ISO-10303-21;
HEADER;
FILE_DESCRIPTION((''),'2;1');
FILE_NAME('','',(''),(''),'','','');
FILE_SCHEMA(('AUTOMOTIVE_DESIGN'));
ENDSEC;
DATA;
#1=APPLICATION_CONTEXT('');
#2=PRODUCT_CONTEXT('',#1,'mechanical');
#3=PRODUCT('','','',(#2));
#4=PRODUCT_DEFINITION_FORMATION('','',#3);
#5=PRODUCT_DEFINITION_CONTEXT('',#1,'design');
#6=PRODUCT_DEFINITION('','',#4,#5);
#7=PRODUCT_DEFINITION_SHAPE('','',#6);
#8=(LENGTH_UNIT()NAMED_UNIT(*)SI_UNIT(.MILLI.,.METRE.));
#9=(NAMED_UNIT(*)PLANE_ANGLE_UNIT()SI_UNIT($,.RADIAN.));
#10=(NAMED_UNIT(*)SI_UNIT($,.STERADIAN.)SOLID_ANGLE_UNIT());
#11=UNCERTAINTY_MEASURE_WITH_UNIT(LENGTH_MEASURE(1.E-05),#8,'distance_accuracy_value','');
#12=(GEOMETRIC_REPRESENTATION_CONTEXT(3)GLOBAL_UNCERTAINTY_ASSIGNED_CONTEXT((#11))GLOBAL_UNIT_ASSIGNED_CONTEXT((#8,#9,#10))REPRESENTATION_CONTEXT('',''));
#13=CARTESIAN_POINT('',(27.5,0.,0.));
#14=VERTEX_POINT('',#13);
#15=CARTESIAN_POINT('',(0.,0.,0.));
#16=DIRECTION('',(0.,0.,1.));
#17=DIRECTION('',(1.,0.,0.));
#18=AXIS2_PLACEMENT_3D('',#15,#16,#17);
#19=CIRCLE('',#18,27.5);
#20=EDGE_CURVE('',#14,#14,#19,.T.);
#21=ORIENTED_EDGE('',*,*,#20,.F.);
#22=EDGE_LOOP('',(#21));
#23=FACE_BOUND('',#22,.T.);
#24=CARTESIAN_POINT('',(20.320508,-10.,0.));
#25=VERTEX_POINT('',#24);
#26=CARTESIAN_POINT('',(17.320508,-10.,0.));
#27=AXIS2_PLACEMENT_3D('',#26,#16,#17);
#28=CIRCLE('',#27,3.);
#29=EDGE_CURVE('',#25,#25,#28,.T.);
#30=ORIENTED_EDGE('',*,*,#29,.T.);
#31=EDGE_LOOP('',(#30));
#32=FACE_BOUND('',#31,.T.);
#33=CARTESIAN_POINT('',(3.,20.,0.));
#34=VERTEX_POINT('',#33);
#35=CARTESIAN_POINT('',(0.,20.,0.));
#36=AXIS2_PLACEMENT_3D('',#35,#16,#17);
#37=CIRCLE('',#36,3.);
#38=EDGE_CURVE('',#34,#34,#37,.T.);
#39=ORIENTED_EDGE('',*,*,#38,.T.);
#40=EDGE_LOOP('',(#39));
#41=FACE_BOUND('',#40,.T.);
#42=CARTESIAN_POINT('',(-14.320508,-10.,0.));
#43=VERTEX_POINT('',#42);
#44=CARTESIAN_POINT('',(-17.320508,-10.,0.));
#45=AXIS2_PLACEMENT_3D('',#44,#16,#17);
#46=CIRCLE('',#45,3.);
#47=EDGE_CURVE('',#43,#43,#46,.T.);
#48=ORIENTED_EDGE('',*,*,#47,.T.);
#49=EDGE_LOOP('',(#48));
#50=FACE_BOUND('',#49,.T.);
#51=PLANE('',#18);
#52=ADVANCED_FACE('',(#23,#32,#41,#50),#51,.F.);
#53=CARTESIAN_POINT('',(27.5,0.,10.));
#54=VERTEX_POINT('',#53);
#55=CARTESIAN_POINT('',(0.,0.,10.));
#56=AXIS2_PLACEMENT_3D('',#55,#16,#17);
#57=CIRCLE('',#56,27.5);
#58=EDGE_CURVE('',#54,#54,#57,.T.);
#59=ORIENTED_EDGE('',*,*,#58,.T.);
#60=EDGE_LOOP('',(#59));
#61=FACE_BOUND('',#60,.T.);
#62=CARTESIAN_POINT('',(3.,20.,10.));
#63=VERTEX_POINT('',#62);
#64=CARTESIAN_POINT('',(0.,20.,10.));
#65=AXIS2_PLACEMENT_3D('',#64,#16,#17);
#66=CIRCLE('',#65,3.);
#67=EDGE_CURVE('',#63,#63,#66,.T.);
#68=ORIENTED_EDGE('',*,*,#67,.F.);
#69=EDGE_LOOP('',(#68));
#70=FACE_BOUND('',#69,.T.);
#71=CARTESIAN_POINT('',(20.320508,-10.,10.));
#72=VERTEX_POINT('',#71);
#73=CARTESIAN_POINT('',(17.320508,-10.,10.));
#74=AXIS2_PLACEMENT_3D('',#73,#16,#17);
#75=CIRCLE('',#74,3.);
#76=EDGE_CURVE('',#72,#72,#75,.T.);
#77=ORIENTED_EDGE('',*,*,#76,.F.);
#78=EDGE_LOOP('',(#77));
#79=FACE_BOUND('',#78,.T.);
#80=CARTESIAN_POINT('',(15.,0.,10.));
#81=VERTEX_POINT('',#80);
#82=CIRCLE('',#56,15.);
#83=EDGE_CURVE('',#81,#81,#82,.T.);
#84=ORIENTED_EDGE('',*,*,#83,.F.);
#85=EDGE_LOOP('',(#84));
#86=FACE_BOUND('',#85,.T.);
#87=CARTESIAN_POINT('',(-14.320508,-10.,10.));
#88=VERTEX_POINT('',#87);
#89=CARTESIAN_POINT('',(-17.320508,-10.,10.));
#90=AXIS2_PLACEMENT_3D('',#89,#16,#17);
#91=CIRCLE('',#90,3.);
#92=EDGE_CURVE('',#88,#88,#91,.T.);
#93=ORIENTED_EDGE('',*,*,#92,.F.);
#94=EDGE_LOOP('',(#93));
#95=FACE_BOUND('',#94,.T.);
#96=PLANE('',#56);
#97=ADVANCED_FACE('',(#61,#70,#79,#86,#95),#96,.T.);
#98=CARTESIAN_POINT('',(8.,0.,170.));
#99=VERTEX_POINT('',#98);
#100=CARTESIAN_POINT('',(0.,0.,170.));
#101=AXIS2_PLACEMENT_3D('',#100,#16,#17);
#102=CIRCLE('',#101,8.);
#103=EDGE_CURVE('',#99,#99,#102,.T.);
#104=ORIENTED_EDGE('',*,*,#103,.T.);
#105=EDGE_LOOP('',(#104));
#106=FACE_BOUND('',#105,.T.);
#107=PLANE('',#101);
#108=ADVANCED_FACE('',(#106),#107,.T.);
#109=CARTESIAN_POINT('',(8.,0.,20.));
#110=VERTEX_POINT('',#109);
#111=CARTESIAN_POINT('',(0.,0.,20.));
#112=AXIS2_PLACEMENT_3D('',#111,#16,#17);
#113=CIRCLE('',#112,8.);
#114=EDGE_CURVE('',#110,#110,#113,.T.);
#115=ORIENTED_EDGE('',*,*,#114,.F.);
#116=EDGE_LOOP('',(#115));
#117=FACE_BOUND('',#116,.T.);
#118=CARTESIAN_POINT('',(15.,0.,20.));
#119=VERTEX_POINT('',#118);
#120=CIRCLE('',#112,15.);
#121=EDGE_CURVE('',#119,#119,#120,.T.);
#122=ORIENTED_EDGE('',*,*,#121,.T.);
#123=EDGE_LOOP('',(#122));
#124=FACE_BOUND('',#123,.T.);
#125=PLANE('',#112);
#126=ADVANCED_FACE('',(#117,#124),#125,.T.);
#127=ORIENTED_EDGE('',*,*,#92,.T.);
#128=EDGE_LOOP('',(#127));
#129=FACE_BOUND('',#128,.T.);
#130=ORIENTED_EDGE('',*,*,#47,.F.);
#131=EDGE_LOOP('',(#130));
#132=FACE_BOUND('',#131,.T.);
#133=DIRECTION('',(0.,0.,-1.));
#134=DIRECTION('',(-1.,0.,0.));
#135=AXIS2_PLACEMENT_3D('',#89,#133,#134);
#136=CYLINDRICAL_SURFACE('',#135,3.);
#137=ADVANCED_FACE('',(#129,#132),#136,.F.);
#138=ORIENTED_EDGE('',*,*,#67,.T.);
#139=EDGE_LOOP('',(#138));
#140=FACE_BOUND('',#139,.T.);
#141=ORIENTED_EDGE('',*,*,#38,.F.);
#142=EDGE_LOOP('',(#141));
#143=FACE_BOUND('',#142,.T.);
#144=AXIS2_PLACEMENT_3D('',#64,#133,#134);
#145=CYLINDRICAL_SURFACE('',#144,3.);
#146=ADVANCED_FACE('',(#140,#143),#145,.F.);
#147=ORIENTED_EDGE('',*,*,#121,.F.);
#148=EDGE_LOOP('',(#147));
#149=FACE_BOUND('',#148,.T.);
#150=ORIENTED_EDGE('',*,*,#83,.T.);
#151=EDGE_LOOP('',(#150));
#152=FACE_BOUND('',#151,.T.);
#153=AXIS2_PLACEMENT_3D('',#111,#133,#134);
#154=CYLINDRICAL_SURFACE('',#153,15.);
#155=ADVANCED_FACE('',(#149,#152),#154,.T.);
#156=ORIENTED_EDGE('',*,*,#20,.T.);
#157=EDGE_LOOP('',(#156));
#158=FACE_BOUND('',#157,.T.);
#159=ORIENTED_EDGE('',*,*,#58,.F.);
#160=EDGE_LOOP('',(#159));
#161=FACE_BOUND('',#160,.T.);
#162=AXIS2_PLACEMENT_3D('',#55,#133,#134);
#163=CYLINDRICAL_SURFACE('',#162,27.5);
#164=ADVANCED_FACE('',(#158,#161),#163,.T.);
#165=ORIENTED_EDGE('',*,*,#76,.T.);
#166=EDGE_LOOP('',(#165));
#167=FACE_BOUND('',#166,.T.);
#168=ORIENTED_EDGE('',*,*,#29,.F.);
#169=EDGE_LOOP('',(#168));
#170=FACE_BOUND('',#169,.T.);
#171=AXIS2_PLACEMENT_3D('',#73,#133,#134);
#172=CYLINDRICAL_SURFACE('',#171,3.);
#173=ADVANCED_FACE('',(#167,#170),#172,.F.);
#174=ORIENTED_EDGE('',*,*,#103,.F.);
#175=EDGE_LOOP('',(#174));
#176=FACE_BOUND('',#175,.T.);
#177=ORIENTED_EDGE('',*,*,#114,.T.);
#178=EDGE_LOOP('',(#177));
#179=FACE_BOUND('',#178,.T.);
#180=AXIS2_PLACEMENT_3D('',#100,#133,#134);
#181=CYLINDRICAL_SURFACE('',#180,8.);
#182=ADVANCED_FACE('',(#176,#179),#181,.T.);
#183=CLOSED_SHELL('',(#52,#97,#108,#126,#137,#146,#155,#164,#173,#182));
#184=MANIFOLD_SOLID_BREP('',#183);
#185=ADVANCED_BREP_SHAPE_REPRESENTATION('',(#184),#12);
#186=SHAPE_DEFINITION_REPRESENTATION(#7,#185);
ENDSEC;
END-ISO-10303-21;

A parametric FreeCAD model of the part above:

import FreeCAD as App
import Part
import Sketcher
from FreeCAD import Vector
Q = App.Units.Quantity

doc = App.newDocument("Part")
params = doc.addObject("Spreadsheet::Sheet", "Params")
for row, (alias, value) in enumerate([
    ("sketch1_diameter", "55 mm"),
    ("sketch1_diameter2", "6 mm"),
    ("pad1_length", "10 mm"),
    ("sketch2_diameter", "30 mm"),
    ("pad2_length", "10 mm"),
    ("sketch3_diameter", "16 mm"),
    ("pad3_length", "150 mm"),
], start=1):
    params.set(f"A{row}", alias)
    params.set(f"B{row}", "=" + value)
    params.setAlias(f"B{row}", alias)

body = doc.addObject("PartDesign::Body", "Body")

# Sketch on XY plane
sketch1 = body.newObject("Sketcher::SketchObject", "Sketch")
sketch1.AttachmentSupport = (doc.getObject("XY_Plane"), [""])
sketch1.MapMode = "FlatFace"
sketch1.addGeometry(Part.Circle(Vector(0, 0, 0), Vector(0, 0, 1), 27.5), False)
sketch1.addGeometry(Part.Circle(Vector(-17.3, -10, 0), Vector(0, 0, 1), 3), False)
sketch1.addGeometry(Part.Circle(Vector(17.3, -10, 0), Vector(0, 0, 1), 3), False)
sketch1.addGeometry(Part.Circle(Vector(0, 20, 0), Vector(0, 0, 1), 3), False)
sketch1.addConstraint(Sketcher.Constraint("Coincident", 0, 3, -1, 1))
sketch1.addConstraint(Sketcher.Constraint("Equal", 1, 2))
sketch1.addConstraint(Sketcher.Constraint("Equal", 2, 3))
sketch1.addConstraint(Sketcher.Constraint("Symmetric", 1, 3, 2, 3, -2))
sketch1.addConstraint(Sketcher.Constraint("PointOnObject", 3, 3, -2))
sketch1.addConstraint(Sketcher.Constraint("Diameter", 0, Q("55 mm")))
sketch1.addConstraint(Sketcher.Constraint("Diameter", 1, Q("6 mm")))
sketch1.addConstraint(Sketcher.Constraint("DistanceY", 1, 3, -1, 1, Q("10 mm")))
sketch1.addConstraint(Sketcher.Constraint("DistanceY", -1, 1, 3, 3, Q("20 mm")))
sketch1.addConstraint(Sketcher.Constraint("DistanceX", 1, 3, -1, 1, Q("17.320508 mm")))
sketch1.setExpression("Constraints[5]", "Params.sketch1_diameter")
sketch1.setExpression("Constraints[6]", "Params.sketch1_diameter2")
pad1 = body.newObject("PartDesign::Pad", "Pad")
pad1.Profile = sketch1
pad1.setExpression("Length", "Params.pad1_length")

# Sketch on XY plane
sketch2 = body.newObject("Sketcher::SketchObject", "Sketch001")
sketch2.AttachmentSupport = (doc.getObject("XY_Plane"), [""])
sketch2.MapMode = "FlatFace"
sketch2.AttachmentOffset = App.Placement(Vector(0, 0, 10), App.Rotation())
sketch2.addGeometry(Part.Circle(Vector(0, 0, 0), Vector(0, 0, 1), 15), False)
sketch2.addConstraint(Sketcher.Constraint("Coincident", 0, 3, -1, 1))
sketch2.addConstraint(Sketcher.Constraint("Diameter", 0, Q("30 mm")))
sketch2.setExpression("Constraints[1]", "Params.sketch2_diameter")
pad2 = body.newObject("PartDesign::Pad", "Pad001")
pad2.Profile = sketch2
pad2.setExpression("Length", "Params.pad2_length")

# Sketch on XY plane
sketch3 = body.newObject("Sketcher::SketchObject", "Sketch002")
sketch3.AttachmentSupport = (doc.getObject("XY_Plane"), [""])
sketch3.MapMode = "FlatFace"
sketch3.AttachmentOffset = App.Placement(Vector(0, 0, 20), App.Rotation())
sketch3.addGeometry(Part.Circle(Vector(0, 0, 0), Vector(0, 0, 1), 8), False)
sketch3.addConstraint(Sketcher.Constraint("Coincident", 0, 3, -1, 1))
sketch3.addConstraint(Sketcher.Constraint("Diameter", 0, Q("16 mm")))
sketch3.setExpression("Constraints[1]", "Params.sketch3_diameter")
pad3 = body.newObject("PartDesign::Pad", "Pad002")
pad3.Profile = sketch3
pad3.setExpression("Length", "Params.pad3_length")

doc.recompute()
